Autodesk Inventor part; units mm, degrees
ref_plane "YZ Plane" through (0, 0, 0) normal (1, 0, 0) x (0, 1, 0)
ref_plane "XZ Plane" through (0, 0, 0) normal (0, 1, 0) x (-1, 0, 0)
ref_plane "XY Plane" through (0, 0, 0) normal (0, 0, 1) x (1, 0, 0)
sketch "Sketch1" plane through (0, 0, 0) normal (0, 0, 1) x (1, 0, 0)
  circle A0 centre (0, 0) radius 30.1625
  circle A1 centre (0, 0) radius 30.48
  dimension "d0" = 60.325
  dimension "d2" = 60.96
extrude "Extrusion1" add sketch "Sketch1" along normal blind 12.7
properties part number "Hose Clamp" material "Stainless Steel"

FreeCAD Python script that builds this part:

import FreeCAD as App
import Part
import Sketcher

V = App.Vector
Q = App.Units.Quantity

doc = App.newDocument("Part")
body = doc.addObject("PartDesign::Body", "Body")

# Sketch on XY plane
sketch1 = body.newObject("Sketcher::SketchObject", "Sketch")
sketch1.AttachmentSupport = (doc.getObject("XY_Plane"), [""])
sketch1.MapMode = "FlatFace"
sketch1.addGeometry(Part.Circle(V(0, 0, 0), V(0, 0, 1), 30), False)
sketch1.addGeometry(Part.Circle(V(0, 0, 0), V(0, 0, 1), 30), False)
sketch1.addConstraint(Sketcher.Constraint("Coincident", 0, 3, -1, 1))
sketch1.addConstraint(Sketcher.Constraint("Coincident", 1, 3, -1, 1))
sketch1.addConstraint(Sketcher.Constraint("Diameter", 0, Q("2.4 in")))
sketch1.addConstraint(Sketcher.Constraint("Diameter", 1, Q("2.375 in")))
pad1 = body.newObject("PartDesign::Pad", "Pad")
pad1.Profile = sketch1
pad1.Length = Q("0.5 in")

doc.recompute()
